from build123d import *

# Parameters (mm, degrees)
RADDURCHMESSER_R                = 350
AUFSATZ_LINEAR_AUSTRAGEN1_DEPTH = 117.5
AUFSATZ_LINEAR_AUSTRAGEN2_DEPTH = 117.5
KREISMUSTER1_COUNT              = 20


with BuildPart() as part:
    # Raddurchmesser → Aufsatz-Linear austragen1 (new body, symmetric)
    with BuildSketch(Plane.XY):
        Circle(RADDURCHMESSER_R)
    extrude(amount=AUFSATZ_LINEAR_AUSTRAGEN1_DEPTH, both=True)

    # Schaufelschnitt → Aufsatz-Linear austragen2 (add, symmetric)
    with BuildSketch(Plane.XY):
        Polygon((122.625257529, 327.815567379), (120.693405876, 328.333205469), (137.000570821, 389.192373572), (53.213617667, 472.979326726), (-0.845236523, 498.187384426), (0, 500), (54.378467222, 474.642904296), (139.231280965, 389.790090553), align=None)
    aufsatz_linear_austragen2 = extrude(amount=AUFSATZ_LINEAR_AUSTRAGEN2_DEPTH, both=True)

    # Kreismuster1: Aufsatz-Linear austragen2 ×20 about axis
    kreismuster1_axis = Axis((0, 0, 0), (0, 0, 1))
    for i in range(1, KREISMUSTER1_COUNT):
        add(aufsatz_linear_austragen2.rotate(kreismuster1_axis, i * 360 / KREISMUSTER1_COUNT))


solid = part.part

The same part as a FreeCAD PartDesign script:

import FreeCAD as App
import Part
import Sketcher

V = App.Vector
Q = App.Units.Quantity

doc = App.newDocument("Part")
body = doc.addObject("PartDesign::Body", "Body")

sketch1 = body.newObject("Sketcher::SketchObject", "Sketch")
sketch1.AttachmentSupport = (doc.getObject("XY_Plane"), [""])
sketch1.MapMode = "FlatFace"
sketch1.addGeometry(Part.Circle(V(0, 0, 0), V(0, 0, 1), 350), False)
sketch1.addConstraint(Sketcher.Constraint("Coincident", 0, 3, -1, 1))
sketch1.addConstraint(Sketcher.Constraint("Diameter", 0, 700.0))
pad1 = body.newObject("PartDesign::Pad", "Pad")
pad1.Profile = sketch1
pad1.Length = 235
pad1.Midplane = True

sketch2 = body.newObject("Sketcher::SketchObject", "Sketch001")
sketch2.AttachmentSupport = (doc.getObject("XY_Plane"), [""])
sketch2.MapMode = "FlatFace"
sketch2.addGeometry(Part.LineSegment(V(120.7, 328.3, 0), V(122.6, 327.8, 0)), False)
sketch2.addGeometry(Part.LineSegment(V(122.6, 327.8, 0), V(139.2, 389.8, 0)), False)
sketch2.addGeometry(Part.LineSegment(V(139.2, 389.8, 0), V(54.4, 474.6, 0)), False)
sketch2.addGeometry(Part.LineSegment(V(54.4, 474.6, 0), V(0, 500, 0)), False)
sketch2.addGeometry(Part.LineSegment(V(0, 500, 0), V(-0.8, 498.2, 0)), False)
sketch2.addGeometry(Part.LineSegment(V(-0.8, 498.2, 0), V(53.2, 473, 0)), False)
sketch2.addGeometry(Part.LineSegment(V(53.2, 473, 0), V(137, 389.2, 0)), False)
sketch2.addGeometry(Part.LineSegment(V(137, 389.2, 0), V(120.7, 328.3, 0)), False)
sketch2.addConstraint(Sketcher.Constraint("Coincident", 0, 2, 1, 1))
sketch2.addConstraint(Sketcher.Constraint("Coincident", 1, 2, 2, 1))
sketch2.addConstraint(Sketcher.Constraint("Coincident", 2, 2, 3, 1))
sketch2.addConstraint(Sketcher.Constraint("Coincident", 3, 2, 4, 1))
sketch2.addConstraint(Sketcher.Constraint("Coincident", 4, 2, 5, 1))
sketch2.addConstraint(Sketcher.Constraint("Coincident", 5, 2, 6, 1))
sketch2.addConstraint(Sketcher.Constraint("Coincident", 6, 2, 7, 1))
sketch2.addConstraint(Sketcher.Constraint("Coincident", 7, 2, 0, 1))
sketch2.addConstraint(Sketcher.Constraint("PointOnObject", 3, 2, -2))
sketch2.addConstraint(Sketcher.Constraint("Perpendicular", 0, 1))
sketch2.addConstraint(Sketcher.Constraint("Perpendicular", 3, 4))
sketch2.addConstraint(Sketcher.Constraint("Perpendicular", 4, 5))
sketch2.addConstraint(Sketcher.Constraint("Parallel", 2, 6))
sketch2.addConstraint(Sketcher.Constraint("Parallel", 1, 7))
sketch2.addConstraint(Sketcher.Constraint("Equal", 0, 4))
sketch2.addConstraint(Sketcher.Constraint("Angle", 0, Q("-15 deg")))
sketch2.addConstraint(Sketcher.Constraint("Angle", 2, Q("135 deg")))
sketch2.addConstraint(Sketcher.Constraint("Angle", 3, Q("155 deg")))
sketch2.addConstraint(Sketcher.Constraint("Distance", 0, 2.0))
sketch2.addConstraint(Sketcher.Constraint("Distance", 2, 120.0))
sketch2.addConstraint(Sketcher.Constraint("Distance", 3, 60.0))
sketch2.addConstraint(Sketcher.Constraint("DistanceY", -1, 1, 3, 2, 500.0))
sketch2.addConstraint(Sketcher.Constraint("DistanceY", 7, 2, 2, 2, 146.309699))
sketch2.addConstraint(Sketcher.Constraint("DistanceX", -1, 1, 6, 2, 137.000571))
pad2 = body.newObject("PartDesign::Pad", "Pad001")
pad2.Profile = sketch2
pad2.Length = 235
pad2.Midplane = True
doc.recompute()

polarpattern = body.newObject("PartDesign::PolarPattern", "PolarPattern")
polarpattern.Originals = [pad2]
polarpattern.Axis = (doc.getObject("Z_Axis"), [""])
polarpattern.Angle = 360
polarpattern.Occurrences = 20
body.Tip = polarpattern

doc.recompute()
